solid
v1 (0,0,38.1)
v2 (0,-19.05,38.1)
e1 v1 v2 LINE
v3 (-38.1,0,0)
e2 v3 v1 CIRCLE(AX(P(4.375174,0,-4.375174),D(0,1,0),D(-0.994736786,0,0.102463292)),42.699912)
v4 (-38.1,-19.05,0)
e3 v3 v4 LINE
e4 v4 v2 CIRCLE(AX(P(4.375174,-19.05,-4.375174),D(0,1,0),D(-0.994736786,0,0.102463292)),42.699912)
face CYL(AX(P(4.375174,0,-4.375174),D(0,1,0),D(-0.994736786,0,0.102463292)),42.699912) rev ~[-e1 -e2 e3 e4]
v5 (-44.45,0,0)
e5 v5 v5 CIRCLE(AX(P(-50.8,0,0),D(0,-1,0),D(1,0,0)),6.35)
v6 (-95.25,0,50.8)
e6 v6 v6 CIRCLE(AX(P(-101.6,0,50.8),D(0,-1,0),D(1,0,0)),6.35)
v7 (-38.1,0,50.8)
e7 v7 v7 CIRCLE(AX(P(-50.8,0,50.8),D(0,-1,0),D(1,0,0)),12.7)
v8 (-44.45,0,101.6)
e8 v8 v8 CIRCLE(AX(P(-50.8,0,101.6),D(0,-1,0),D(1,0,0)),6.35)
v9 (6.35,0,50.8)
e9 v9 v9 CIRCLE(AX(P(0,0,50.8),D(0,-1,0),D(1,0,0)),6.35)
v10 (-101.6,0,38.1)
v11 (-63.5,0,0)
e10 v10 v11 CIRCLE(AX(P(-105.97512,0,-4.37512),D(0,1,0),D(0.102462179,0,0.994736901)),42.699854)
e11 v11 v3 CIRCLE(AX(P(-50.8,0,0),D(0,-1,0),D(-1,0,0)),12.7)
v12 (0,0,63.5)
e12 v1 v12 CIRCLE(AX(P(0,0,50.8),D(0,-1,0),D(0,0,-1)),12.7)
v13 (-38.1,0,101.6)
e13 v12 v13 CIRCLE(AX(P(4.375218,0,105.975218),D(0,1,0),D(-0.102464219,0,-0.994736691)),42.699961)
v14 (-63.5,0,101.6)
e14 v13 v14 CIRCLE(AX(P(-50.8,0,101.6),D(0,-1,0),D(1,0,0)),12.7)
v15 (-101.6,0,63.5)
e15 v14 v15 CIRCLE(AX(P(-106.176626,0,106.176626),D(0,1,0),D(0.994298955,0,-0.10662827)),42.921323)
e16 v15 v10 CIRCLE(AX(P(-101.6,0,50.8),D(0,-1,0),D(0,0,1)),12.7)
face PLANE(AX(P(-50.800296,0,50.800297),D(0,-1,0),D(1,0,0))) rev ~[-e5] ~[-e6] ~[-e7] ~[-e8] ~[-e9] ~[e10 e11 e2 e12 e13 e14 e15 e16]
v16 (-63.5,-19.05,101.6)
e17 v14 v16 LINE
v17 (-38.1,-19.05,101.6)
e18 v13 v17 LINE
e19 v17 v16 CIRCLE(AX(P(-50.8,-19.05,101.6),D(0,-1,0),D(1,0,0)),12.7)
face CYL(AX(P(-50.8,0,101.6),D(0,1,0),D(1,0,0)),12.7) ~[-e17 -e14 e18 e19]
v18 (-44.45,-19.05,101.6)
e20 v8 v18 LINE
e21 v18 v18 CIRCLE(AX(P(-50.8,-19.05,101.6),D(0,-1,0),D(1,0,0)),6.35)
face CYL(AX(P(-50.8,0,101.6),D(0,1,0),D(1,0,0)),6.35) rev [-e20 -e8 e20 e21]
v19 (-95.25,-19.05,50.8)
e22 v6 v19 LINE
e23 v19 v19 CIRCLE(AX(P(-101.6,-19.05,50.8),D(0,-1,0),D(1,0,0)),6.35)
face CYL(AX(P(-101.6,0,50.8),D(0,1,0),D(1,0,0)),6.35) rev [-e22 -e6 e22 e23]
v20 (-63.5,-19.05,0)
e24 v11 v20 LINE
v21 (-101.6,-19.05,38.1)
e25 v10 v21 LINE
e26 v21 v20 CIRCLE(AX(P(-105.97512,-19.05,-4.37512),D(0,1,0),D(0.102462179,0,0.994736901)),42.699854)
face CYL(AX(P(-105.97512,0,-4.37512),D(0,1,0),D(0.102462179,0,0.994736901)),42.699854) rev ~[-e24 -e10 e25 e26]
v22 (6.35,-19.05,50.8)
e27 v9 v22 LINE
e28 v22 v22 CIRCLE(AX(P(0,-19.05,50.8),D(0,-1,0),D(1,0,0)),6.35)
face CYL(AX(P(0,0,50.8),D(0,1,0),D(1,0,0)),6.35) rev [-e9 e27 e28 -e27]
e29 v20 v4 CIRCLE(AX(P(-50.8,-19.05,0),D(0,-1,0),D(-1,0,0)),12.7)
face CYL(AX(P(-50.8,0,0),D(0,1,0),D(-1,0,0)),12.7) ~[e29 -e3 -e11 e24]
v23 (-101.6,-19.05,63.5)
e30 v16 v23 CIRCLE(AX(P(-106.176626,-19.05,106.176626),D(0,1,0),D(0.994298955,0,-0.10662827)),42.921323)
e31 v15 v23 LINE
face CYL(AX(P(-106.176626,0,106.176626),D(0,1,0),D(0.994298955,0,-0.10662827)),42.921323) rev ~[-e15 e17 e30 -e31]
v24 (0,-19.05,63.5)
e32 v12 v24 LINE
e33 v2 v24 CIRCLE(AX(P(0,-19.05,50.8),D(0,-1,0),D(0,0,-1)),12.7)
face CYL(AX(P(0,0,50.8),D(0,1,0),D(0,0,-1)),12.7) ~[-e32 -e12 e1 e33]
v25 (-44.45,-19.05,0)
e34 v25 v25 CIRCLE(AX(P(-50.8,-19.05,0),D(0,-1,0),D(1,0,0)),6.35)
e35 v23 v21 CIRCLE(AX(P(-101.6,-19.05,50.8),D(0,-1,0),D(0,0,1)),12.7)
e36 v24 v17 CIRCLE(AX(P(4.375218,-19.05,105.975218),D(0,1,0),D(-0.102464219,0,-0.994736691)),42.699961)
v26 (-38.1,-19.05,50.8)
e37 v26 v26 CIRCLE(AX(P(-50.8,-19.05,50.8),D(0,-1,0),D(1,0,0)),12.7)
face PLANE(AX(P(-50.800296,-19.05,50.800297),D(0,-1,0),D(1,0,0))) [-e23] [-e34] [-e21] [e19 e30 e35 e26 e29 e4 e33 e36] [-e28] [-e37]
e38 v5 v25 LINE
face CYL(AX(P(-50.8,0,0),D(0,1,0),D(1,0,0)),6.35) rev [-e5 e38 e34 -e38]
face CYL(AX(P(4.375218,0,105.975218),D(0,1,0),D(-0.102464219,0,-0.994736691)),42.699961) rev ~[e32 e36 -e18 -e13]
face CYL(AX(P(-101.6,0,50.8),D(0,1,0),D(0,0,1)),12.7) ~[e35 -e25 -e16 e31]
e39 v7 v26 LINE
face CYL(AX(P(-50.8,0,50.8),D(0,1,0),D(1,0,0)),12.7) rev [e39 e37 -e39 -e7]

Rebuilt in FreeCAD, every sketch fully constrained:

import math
import FreeCAD as App
import Part
import Sketcher
from FreeCAD import Vector
Q = App.Units.Quantity

doc = App.newDocument("Part")
params = doc.addObject("Spreadsheet::Sheet", "Params")
for row, (alias, value) in enumerate([
    ("sketch1_diameter", "1 in"),
    ("sketch1_diameter2", "0.5 in"),
    ("pad1_length", "0.75 in"),
], start=1):
    params.set(f"A{row}", alias)
    params.set(f"B{row}", "=" + value)
    params.setAlias(f"B{row}", alias)

body = doc.addObject("PartDesign::Body", "Body")

# Sketch on XZ plane
sketch1 = body.newObject("Sketcher::SketchObject", "Sketch")
sketch1.AttachmentSupport = (doc.getObject("XZ_Plane"), [""])
sketch1.MapMode = "FlatFace"
sketch1.addGeometry(Part.ArcOfCircle(Part.Circle(Vector(-106, 106, 0), Vector(0, 0, 1), 43), math.radians(-84), math.radians(-6)), False)
sketch1.addGeometry(Part.ArcOfCircle(Part.Circle(Vector(-102, 51, 0), Vector(0, 0, 1), 13), math.radians(90), math.radians(270)), False)
sketch1.addGeometry(Part.ArcOfCircle(Part.Circle(Vector(-106, -4, 0), Vector(0, 0, 1), 43), math.radians(6), math.radians(84)), False)
sketch1.addGeometry(Part.ArcOfCircle(Part.Circle(Vector(-51, 0, 0), Vector(0, 0, 1), 13), math.radians(180), math.radians(360)), False)
sketch1.addGeometry(Part.ArcOfCircle(Part.Circle(Vector(4, -4, 0), Vector(0, 0, 1), 43), math.radians(96), math.radians(174)), False)
sketch1.addGeometry(Part.ArcOfCircle(Part.Circle(Vector(0, 51, 0), Vector(0, 0, 1), 13), math.radians(-90), math.radians(90)), False)
sketch1.addGeometry(Part.ArcOfCircle(Part.Circle(Vector(4, 106, 0), Vector(0, 0, 1), 43), math.radians(-174), math.radians(-96)), False)
sketch1.addGeometry(Part.ArcOfCircle(Part.Circle(Vector(-51, 102, 0), Vector(0, 0, 1), 13), math.radians(0), math.radians(180)), False)
sketch1.addGeometry(Part.Circle(Vector(-51, 0, 0), Vector(0, 0, 1), 6), False)
sketch1.addGeometry(Part.Circle(Vector(-102, 51, 0), Vector(0, 0, 1), 6), False)
sketch1.addGeometry(Part.Circle(Vector(-51, 51, 0), Vector(0, 0, 1), 13), False)
sketch1.addGeometry(Part.Circle(Vector(-51, 102, 0), Vector(0, 0, 1), 6), False)
sketch1.addGeometry(Part.Circle(Vector(0, 51, 0), Vector(0, 0, 1), 6), False)
sketch1.addConstraint(Sketcher.Constraint("Coincident", 0, 1, 1, 1))
sketch1.addConstraint(Sketcher.Constraint("Coincident", 1, 2, 2, 2))
sketch1.addConstraint(Sketcher.Constraint("Coincident", 2, 1, 3, 1))
sketch1.addConstraint(Sketcher.Constraint("Coincident", 3, 2, 4, 2))
sketch1.addConstraint(Sketcher.Constraint("Coincident", 4, 1, 5, 1))
sketch1.addConstraint(Sketcher.Constraint("Coincident", 5, 2, 6, 2))
sketch1.addConstraint(Sketcher.Constraint("Coincident", 6, 1, 7, 1))
sketch1.addConstraint(Sketcher.Constraint("Coincident", 7, 2, 0, 2))
sketch1.addConstraint(Sketcher.Constraint("Coincident", 8, 3, 3, 3))
sketch1.addConstraint(Sketcher.Constraint("Coincident", 9, 3, 1, 3))
sketch1.addConstraint(Sketcher.Constraint("Coincident", 11, 3, 7, 3))
sketch1.addConstraint(Sketcher.Constraint("Coincident", 12, 3, 5, 3))
sketch1.addConstraint(Sketcher.Constraint("Equal", 1, 3))
sketch1.addConstraint(Sketcher.Constraint("Equal", 3, 5))
sketch1.addConstraint(Sketcher.Constraint("Equal", 5, 7))
sketch1.addConstraint(Sketcher.Constraint("Equal", 8, 9))
sketch1.addConstraint(Sketcher.Constraint("Equal", 7, 10))
sketch1.addConstraint(Sketcher.Constraint("Equal", 9, 11))
sketch1.addConstraint(Sketcher.Constraint("Equal", 11, 12))
sketch1.addConstraint(Sketcher.Constraint("PointOnObject", 3, 3, -1))
sketch1.addConstraint(Sketcher.Constraint("PointOnObject", 5, 3, -2))
sketch1.addConstraint(Sketcher.Constraint("PointOnObject", 2, 1, -1))
sketch1.addConstraint(Sketcher.Constraint("PointOnObject", 3, 2, -1))
sketch1.addConstraint(Sketcher.Constraint("PointOnObject", 4, 1, -2))
sketch1.addConstraint(Sketcher.Constraint("PointOnObject", 5, 2, -2))
sketch1.addConstraint(Sketcher.Constraint("Horizontal", 1, 3, 5, 3))
sketch1.addConstraint(Sketcher.Constraint("Horizontal", 9, 3, 10, 3))
sketch1.addConstraint(Sketcher.Constraint("Horizontal", 11, 3, 6, 1))
sketch1.addConstraint(Sketcher.Constraint("Horizontal", 6, 1, 7, 2))
sketch1.addConstraint(Sketcher.Constraint("Vertical", 3, 3, 7, 3))
sketch1.addConstraint(Sketcher.Constraint("Vertical", 8, 3, 10, 3))
sketch1.addConstraint(Sketcher.Constraint("Vertical", 9, 3, 0, 1))
sketch1.addConstraint(Sketcher.Constraint("Vertical", 0, 1, 1, 2))
sketch1.addConstraint(Sketcher.Constraint("Diameter", 10, Q("1 in")))
sketch1.addConstraint(Sketcher.Constraint("Diameter", 8, Q("0.5 in")))
sketch1.addConstraint(Sketcher.Constraint("DistanceX", 1, 3, -1, 1, Q("4 in")))
sketch1.addConstraint(Sketcher.Constraint("DistanceY", -1, 1, 1, 3, Q("2 in")))
sketch1.addConstraint(Sketcher.Constraint("DistanceX", 3, 3, -1, 1, Q("2 in")))
sketch1.addConstraint(Sketcher.Constraint("DistanceY", -1, 1, 7, 3, Q("4 in")))
sketch1.addConstraint(Sketcher.Constraint("Radius", 6, Q("42.699961 mm")))
sketch1.addConstraint(Sketcher.Constraint("Radius", 0, Q("42.921323 mm")))
sketch1.addConstraint(Sketcher.Constraint("Radius", 2, Q("42.699854 mm")))
sketch1.addConstraint(Sketcher.Constraint("Radius", 4, Q("42.699912 mm")))
sketch1.setExpression("Constraints[33]", "Params.sketch1_diameter")
sketch1.setExpression("Constraints[34]", "Params.sketch1_diameter2")
pad1 = body.newObject("PartDesign::Pad", "Pad")
pad1.Profile = sketch1
pad1.setExpression("Length", "Params.pad1_length")

doc.recompute()
